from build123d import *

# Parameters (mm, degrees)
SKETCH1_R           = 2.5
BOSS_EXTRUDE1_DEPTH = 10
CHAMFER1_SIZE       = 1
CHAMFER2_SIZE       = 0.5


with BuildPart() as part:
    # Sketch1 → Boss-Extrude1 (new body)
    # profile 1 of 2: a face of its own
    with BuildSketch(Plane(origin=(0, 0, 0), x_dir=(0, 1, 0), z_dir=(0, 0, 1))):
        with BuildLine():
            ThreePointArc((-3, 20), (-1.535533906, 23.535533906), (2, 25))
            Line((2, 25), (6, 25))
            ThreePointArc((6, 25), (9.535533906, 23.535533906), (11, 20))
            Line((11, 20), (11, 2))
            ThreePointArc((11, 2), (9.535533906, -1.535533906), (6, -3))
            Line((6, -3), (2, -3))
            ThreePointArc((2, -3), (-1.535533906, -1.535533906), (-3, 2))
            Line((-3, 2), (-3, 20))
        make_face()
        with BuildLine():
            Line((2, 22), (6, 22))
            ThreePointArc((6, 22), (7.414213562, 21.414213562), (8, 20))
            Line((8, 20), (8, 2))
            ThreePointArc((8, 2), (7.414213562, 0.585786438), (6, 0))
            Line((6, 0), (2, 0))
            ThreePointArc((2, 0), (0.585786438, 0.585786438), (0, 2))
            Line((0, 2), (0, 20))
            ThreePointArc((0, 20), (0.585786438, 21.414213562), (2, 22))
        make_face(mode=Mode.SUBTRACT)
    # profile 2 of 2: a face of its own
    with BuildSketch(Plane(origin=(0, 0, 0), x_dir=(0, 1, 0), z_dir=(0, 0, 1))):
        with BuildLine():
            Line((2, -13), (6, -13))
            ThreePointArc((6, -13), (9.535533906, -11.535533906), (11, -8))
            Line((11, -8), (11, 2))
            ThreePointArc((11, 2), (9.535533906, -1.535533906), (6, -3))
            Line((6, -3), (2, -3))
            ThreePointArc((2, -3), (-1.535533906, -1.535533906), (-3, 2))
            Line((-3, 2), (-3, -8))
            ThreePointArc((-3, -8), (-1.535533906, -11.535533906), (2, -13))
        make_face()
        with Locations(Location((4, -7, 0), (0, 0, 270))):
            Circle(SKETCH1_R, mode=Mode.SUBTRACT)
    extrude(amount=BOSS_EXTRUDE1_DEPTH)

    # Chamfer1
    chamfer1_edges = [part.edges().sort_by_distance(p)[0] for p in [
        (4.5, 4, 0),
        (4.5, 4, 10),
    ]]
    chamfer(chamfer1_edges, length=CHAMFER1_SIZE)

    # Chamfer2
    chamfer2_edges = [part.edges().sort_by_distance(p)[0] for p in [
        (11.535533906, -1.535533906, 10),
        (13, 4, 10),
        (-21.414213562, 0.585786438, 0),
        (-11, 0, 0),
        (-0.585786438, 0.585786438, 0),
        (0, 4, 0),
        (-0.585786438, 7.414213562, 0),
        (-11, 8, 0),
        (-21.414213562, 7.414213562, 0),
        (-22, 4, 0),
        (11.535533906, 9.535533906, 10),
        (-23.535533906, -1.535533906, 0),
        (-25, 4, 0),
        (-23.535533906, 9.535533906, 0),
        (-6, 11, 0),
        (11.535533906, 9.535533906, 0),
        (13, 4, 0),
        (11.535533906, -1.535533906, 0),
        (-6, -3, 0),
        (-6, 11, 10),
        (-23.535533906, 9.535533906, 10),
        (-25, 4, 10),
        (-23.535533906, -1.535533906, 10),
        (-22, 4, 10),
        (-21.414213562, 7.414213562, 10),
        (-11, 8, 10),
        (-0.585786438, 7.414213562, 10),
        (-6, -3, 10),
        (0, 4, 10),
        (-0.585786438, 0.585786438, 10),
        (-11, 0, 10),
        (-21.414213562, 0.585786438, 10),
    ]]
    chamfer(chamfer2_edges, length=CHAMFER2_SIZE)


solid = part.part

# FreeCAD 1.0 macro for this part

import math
import FreeCAD as App
import Part
import Sketcher


def edges_at(feature, points):
    """Names of the edges that pass closest to the given points."""
    edges = feature.Shape.Edges
    near = lambda p: min(range(len(edges)), key=lambda i: edges[i].distToShape(Part.Vertex(*p))[0])
    return sorted({f"Edge{near(p) + 1}" for p in points})

doc = App.newDocument("Part")
body = doc.addObject("PartDesign::Body", "Body")

# Sketch on XY plane
sketch1 = body.newObject("Sketcher::SketchObject", "Sketch")
sketch1.AttachmentSupport = (doc.getObject("XY_Plane"), [""])
sketch1.MapMode = "FlatFace"
sketch1.addGeometry([
    Part.ArcOfCircle(Part.Circle(App.Vector(-20, 2, 0), App.Vector(0, 0, 1), 5), math.radians(180), math.radians(270)),  # 0
    Part.LineSegment(App.Vector(-20, -3, 0), App.Vector(8, -3, 0)),  # 1
    Part.ArcOfCircle(Part.Circle(App.Vector(8, 2, 0), App.Vector(0, 0, 1), 5), math.radians(-90), math.radians(0)),  # 2
    Part.LineSegment(App.Vector(13, 2, 0), App.Vector(13, 6, 0)),  # 3
    Part.ArcOfCircle(Part.Circle(App.Vector(8, 6, 0), App.Vector(0, 0, 1), 5), math.radians(0), math.radians(90)),  # 4
    Part.LineSegment(App.Vector(8, 11, 0), App.Vector(-20, 11, 0)),  # 5
    Part.ArcOfCircle(Part.Circle(App.Vector(-20, 6, 0), App.Vector(0, 0, 1), 5), math.radians(90), math.radians(180)),  # 6
    Part.LineSegment(App.Vector(-25, 6, 0), App.Vector(-25, 2, 0)),  # 7
    Part.LineSegment(App.Vector(-22, 2, 0), App.Vector(-22, 6, 0)),  # 8
    Part.ArcOfCircle(Part.Circle(App.Vector(-20, 6, 0), App.Vector(0, 0, 1), 2), math.radians(90), math.radians(180)),  # 9
    Part.LineSegment(App.Vector(-20, 8, 0), App.Vector(-2, 8, 0)),  # 10
    Part.ArcOfCircle(Part.Circle(App.Vector(-2, 6, 0), App.Vector(0, 0, 1), 2), math.radians(0), math.radians(90)),  # 11
    Part.LineSegment(App.Vector(0, 6, 0), App.Vector(0, 2, 0)),  # 12
    Part.ArcOfCircle(Part.Circle(App.Vector(-2, 2, 0), App.Vector(0, 0, 1), 2), math.radians(-90), math.radians(0)),  # 13
    Part.LineSegment(App.Vector(-2, 0, 0), App.Vector(-20, 0, 0)),  # 14
    Part.ArcOfCircle(Part.Circle(App.Vector(-20, 2, 0), App.Vector(0, 0, 1), 2), math.radians(-180), math.radians(-90)),  # 15
    Part.Circle(App.Vector(7, 4, 0), App.Vector(0, 0, 1), 2.5),  # 16
], False)
sketch1.addConstraint([
    Sketcher.Constraint("Tangent", 0, 2, 1, 1),
    Sketcher.Constraint("Tangent", 1, 2, 2, 1),
    Sketcher.Constraint("Tangent", 2, 2, 3, 1),
    Sketcher.Constraint("Tangent", 3, 2, 4, 1),
    Sketcher.Constraint("Tangent", 4, 2, 5, 1),
    Sketcher.Constraint("Tangent", 5, 2, 6, 1),
    Sketcher.Constraint("Tangent", 6, 2, 7, 1),
    Sketcher.Constraint("Tangent", 7, 2, 0, 1),
    Sketcher.Constraint("Tangent", 8, 2, 9, 2),
    Sketcher.Constraint("Tangent", 9, 1, 10, 1),
    Sketcher.Constraint("Tangent", 10, 2, 11, 2),
    Sketcher.Constraint("Tangent", 11, 1, 12, 1),
    Sketcher.Constraint("Tangent", 12, 2, 13, 2),
    Sketcher.Constraint("Tangent", 13, 1, 14, 1),
    Sketcher.Constraint("Tangent", 14, 2, 15, 2),
    Sketcher.Constraint("Tangent", 15, 1, 8, 1),
    Sketcher.Constraint("Horizontal", 1),
    Sketcher.Constraint("Vertical", 3),
    Sketcher.Constraint("Horizontal", 5),
    Sketcher.Constraint("Vertical", 7),
    Sketcher.Constraint("Vertical", 8),
    Sketcher.Constraint("Horizontal", 10),
    Sketcher.Constraint("Vertical", 12),
    Sketcher.Constraint("Horizontal", 14),
    Sketcher.Constraint("Coincident", 9, 3, 6, 3),
    Sketcher.Constraint("Coincident", 15, 3, 0, 3),
    Sketcher.Constraint("Equal", 0, 2),
    Sketcher.Constraint("Equal", 2, 4),
    Sketcher.Constraint("Equal", 4, 6),
    Sketcher.Constraint("Equal", 9, 11),
    Sketcher.Constraint("Equal", 11, 13),
    Sketcher.Constraint("PointOnObject", 11, 1, -2),
    Sketcher.Constraint("PointOnObject", 13, 1, -1),
    Sketcher.Constraint("Diameter", 16, 5.0),
    Sketcher.Constraint("Radius", 0, 5.0),
    Sketcher.Constraint("Radius", 9, 2.0),
    Sketcher.Constraint("DistanceX", 1, 1, 1, 2, 28.0),
    Sketcher.Constraint("DistanceX", 10, 1, 10, 2, 18.0),
    Sketcher.Constraint("DistanceY", 3, 1, 3, 2, 4.0),
    Sketcher.Constraint("DistanceX", -1, 1, 16, 3, 7.0),
    Sketcher.Constraint("DistanceY", -1, 1, 16, 3, 4.0),
])
pad1 = body.newObject("PartDesign::Pad", "Pad")
pad1.Profile = sketch1
pad1.Length = 10
doc.recompute()

chamfer = body.newObject("PartDesign::Chamfer", "Chamfer")
chamfer.Base = (pad1, edges_at(pad1, [(4.5, 4, 0), (4.5, 4, 10)]))
chamfer.Size = 1
doc.recompute()

chamfer2 = body.newObject("PartDesign::Chamfer", "Chamfer001")
chamfer2.Base = (chamfer, edges_at(chamfer, [
    (11.536, -1.536, 10),
    (13, 4, 10),
    (-21.414, 0.586, 0),
    (-11, 0, 0),
    (-0.586, 0.586, 0),
    (0, 4, 0),
    (-0.586, 7.414, 0),
    (-11, 8, 0),
    (-21.414, 7.414, 0),
    (-22, 4, 0),
    (11.536, 9.536, 10),
    (-23.536, -1.536, 0),
    (-25, 4, 0),
    (-23.536, 9.536, 0),
    (-6, 11, 0),
    (11.536, 9.536, 0),
    (13, 4, 0),
    (11.536, -1.536, 0),
    (-6, -3, 0),
    (-6, 11, 10),
    (-23.536, 9.536, 10),
    (-25, 4, 10),
    (-23.536, -1.536, 10),
    (-22, 4, 10),
    (-21.414, 7.414, 10),
    (-11, 8, 10),
    (-0.586, 7.414, 10),
    (-6, -3, 10),
    (0, 4, 10),
    (-0.586, 0.586, 10),
    (-11, 0, 10),
    (-21.414, 0.586, 10),
]))
chamfer2.Size = 0.5

doc.recompute()
